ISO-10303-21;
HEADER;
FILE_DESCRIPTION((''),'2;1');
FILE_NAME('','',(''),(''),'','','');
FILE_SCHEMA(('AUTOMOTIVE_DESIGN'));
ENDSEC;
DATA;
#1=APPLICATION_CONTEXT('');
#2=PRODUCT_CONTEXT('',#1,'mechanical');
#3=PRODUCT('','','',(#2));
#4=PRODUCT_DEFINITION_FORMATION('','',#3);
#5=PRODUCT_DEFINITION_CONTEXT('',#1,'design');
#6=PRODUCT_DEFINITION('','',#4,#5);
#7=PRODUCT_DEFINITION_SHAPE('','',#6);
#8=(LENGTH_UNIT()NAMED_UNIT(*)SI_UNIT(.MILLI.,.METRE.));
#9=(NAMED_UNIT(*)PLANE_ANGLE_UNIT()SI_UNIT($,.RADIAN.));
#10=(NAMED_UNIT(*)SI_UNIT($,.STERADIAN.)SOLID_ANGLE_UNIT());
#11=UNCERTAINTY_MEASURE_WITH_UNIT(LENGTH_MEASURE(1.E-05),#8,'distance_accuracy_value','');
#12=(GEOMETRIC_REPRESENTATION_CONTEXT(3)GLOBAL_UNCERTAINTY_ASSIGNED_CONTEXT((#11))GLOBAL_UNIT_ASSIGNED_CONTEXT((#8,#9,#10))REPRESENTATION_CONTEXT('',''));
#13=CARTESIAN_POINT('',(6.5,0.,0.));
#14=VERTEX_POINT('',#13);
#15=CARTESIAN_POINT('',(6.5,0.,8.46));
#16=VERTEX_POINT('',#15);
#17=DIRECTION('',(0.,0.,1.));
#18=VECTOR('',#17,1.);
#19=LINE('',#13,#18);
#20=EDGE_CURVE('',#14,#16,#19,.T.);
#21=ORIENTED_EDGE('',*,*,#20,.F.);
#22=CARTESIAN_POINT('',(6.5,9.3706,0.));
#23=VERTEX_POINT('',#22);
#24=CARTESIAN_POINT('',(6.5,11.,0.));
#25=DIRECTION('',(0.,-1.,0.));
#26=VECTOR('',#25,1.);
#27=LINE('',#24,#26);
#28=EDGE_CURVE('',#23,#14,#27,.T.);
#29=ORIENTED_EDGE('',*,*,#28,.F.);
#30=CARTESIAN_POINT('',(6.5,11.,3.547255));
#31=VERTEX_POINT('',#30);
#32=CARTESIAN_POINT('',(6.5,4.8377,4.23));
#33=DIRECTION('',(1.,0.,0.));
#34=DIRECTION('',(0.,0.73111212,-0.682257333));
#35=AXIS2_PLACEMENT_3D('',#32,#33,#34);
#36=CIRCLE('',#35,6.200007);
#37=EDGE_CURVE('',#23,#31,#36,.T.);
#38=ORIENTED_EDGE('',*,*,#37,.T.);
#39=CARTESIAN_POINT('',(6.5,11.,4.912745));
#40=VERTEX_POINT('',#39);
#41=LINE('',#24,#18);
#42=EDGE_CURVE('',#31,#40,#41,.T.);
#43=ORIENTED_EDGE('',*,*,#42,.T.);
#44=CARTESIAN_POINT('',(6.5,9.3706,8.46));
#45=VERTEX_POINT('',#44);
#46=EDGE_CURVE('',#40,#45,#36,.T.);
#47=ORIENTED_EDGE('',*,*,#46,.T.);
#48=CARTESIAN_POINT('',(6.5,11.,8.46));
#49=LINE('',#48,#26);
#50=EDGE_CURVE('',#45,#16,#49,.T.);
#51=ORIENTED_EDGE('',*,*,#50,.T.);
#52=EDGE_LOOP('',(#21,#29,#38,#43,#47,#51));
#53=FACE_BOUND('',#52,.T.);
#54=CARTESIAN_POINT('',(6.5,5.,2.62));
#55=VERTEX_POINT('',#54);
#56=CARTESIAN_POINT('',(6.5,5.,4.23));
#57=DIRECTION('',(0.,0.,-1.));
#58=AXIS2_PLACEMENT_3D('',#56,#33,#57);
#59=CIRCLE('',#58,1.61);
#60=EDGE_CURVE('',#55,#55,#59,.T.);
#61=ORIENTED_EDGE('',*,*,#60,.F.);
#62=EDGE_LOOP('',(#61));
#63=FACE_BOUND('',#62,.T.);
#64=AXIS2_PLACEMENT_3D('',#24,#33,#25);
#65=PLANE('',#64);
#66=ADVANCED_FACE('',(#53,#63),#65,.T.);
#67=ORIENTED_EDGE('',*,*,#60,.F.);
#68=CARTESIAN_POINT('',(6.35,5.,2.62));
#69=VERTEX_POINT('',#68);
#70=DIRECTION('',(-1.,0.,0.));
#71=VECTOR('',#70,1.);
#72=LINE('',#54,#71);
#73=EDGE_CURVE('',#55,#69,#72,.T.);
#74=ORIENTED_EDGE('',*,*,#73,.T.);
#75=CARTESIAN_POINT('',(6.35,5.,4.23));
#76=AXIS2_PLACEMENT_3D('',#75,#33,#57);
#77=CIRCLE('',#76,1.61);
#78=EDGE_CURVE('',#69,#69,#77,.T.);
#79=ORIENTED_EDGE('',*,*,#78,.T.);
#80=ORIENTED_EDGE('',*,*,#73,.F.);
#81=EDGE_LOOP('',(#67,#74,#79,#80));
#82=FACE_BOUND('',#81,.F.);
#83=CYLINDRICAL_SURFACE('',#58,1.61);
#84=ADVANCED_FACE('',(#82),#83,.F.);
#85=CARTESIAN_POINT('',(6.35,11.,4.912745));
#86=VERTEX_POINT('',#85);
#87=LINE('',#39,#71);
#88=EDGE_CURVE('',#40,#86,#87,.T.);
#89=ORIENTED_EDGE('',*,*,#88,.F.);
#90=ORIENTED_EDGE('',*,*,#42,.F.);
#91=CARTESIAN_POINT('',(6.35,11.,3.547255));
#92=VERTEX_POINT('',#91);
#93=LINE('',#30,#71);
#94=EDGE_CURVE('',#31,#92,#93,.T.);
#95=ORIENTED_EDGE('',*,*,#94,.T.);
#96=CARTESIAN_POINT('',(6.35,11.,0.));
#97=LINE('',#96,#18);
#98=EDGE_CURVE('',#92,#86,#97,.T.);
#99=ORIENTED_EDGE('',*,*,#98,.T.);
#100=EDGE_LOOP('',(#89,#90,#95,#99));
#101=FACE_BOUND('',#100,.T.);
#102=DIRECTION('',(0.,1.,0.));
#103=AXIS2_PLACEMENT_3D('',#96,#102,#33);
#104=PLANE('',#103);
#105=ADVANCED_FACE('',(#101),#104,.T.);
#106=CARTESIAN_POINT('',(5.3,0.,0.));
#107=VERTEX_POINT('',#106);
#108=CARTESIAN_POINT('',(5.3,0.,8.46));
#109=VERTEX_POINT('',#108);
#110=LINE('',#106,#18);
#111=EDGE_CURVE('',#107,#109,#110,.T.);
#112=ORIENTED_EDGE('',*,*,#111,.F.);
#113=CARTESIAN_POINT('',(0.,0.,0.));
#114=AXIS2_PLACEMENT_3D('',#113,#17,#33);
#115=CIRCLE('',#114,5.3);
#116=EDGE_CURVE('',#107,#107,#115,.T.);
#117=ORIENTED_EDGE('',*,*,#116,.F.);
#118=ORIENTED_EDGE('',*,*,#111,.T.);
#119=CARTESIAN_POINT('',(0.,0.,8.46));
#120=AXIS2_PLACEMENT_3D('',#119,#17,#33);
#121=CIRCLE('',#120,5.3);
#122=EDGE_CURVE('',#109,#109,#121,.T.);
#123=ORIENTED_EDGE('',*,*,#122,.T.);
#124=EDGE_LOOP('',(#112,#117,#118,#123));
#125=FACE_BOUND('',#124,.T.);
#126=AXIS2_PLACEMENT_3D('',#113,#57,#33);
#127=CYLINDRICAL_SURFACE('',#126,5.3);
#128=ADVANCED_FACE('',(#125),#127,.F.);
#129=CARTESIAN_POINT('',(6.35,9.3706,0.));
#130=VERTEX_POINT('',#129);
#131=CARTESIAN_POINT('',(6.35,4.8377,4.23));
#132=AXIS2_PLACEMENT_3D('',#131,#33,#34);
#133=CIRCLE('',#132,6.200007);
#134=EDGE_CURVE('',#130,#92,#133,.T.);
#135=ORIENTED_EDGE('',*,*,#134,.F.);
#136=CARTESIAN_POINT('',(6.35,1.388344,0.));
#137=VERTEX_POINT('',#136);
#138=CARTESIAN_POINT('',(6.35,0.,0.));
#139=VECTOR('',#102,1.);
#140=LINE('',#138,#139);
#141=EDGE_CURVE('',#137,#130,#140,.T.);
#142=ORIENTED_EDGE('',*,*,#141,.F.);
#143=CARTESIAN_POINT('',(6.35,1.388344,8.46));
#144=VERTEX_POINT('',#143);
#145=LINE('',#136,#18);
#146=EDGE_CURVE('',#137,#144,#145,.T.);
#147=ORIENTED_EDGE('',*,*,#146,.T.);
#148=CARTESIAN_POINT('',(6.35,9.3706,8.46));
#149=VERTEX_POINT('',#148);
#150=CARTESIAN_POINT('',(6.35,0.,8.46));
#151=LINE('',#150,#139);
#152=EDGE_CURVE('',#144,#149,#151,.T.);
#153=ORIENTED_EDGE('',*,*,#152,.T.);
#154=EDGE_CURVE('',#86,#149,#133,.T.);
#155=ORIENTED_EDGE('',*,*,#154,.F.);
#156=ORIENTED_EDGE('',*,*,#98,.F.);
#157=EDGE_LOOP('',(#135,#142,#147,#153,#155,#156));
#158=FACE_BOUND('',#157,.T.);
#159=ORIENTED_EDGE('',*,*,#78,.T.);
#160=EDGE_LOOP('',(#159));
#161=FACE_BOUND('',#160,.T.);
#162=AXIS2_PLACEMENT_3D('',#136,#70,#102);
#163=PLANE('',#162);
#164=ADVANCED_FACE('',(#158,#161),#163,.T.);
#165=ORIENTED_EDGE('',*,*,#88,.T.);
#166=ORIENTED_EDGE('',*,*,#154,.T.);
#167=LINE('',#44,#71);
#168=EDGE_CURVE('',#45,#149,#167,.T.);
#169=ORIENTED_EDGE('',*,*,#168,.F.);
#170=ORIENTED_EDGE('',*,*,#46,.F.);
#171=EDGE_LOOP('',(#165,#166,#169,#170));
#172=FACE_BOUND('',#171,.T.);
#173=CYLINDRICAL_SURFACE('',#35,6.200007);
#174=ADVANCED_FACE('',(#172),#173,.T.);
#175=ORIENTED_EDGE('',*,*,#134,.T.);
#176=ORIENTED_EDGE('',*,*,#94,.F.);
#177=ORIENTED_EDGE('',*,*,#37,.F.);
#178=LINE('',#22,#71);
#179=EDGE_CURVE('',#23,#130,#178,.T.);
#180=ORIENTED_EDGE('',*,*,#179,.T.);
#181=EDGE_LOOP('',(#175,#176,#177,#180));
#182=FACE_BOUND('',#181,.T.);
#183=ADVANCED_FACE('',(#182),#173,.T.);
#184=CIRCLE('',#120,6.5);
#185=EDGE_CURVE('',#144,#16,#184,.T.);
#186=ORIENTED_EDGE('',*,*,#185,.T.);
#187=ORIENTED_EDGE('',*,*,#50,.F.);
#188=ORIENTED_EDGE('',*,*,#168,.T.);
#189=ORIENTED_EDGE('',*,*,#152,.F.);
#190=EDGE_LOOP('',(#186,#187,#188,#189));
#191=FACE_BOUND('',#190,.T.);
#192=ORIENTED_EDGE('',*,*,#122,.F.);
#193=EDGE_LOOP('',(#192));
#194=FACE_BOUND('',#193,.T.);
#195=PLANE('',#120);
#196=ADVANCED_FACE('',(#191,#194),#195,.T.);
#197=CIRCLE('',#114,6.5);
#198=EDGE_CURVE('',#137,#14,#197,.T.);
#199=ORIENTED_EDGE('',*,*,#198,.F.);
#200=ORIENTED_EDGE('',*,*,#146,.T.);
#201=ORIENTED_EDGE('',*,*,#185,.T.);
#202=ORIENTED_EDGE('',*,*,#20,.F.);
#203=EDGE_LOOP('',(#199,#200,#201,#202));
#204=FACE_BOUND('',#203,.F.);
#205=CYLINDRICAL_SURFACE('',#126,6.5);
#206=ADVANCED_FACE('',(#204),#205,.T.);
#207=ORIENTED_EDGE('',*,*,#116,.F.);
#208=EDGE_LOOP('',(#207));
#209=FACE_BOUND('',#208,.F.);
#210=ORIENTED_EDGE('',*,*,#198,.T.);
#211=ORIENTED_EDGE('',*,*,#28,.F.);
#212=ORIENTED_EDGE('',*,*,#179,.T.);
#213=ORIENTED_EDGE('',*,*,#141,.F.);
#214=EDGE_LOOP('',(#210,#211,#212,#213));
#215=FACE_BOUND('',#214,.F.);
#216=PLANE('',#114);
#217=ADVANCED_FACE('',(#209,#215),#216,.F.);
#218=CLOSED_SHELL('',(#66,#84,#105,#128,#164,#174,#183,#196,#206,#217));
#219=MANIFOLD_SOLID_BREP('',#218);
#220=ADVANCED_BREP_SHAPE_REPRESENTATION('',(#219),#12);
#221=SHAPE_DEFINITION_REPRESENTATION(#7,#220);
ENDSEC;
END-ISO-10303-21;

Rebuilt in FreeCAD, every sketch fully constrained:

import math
import FreeCAD as App
import Part
import Sketcher

V = App.Vector

doc = App.newDocument("Part")
params = doc.addObject("Spreadsheet::Sheet", "Params")
for row, (alias, value) in enumerate([
    ("sketch1_radius", "6.5 mm"),
    ("sketch1_height", "11 mm"),
    ("sketch1_diameter", "10.6 mm"),
    ("sketch1_width", "0.15 mm"),
    ("pad1_length", "8.46 mm"),
    ("sketch2_radius", "6.2 mm"),
    ("sketch2_diameter", "3.22 mm"),
    ("pocket1_length", "0.15 mm"),
], start=1):
    params.set(f"A{row}", alias)
    params.set(f"B{row}", "=" + value)
    params.setAlias(f"B{row}", alias)

body = doc.addObject("PartDesign::Body", "Body")

sketch1 = body.newObject("Sketcher::SketchObject", "Sketch")
sketch1.AttachmentSupport = (doc.getObject("XY_Plane"), [""])
sketch1.MapMode = "FlatFace"
sketch1.addGeometry(Part.ArcOfCircle(Part.Circle(V(0, 0, 0), V(0, 0, 1), 6.5), math.radians(12.332903), math.radians(360)), False)
sketch1.addGeometry(Part.LineSegment(V(6.5, 0, 0), V(6.5, 11, 0)), False)
sketch1.addGeometry(Part.LineSegment(V(6.5, 11, 0), V(6.35, 11, 0)), False)
sketch1.addGeometry(Part.LineSegment(V(6.35, 11, 0), V(6.35, 1.388344, 0)), False)
sketch1.addGeometry(Part.Circle(V(0, 0, 0), V(0, 0, 1), 5.3), False)
sketch1.addConstraint(Sketcher.Constraint("Tangent", 0, 2, 1, 1))
sketch1.addConstraint(Sketcher.Constraint("Coincident", 1, 2, 2, 1))
sketch1.addConstraint(Sketcher.Constraint("Coincident", 2, 2, 3, 1))
sketch1.addConstraint(Sketcher.Constraint("Coincident", 3, 2, 0, 1))
sketch1.addConstraint(Sketcher.Constraint("Vertical", 1))
sketch1.addConstraint(Sketcher.Constraint("Horizontal", 2))
sketch1.addConstraint(Sketcher.Constraint("Vertical", 3))
sketch1.addConstraint(Sketcher.Constraint("Coincident", 0, 3, -1, 1))
sketch1.addConstraint(Sketcher.Constraint("Coincident", 4, 3, -1, 1))
sketch1.addConstraint(Sketcher.Constraint("Radius", 0, 6.5))
sketch1.addConstraint(Sketcher.Constraint("DistanceY", 1, 1, 1, 2, 11.0))
sketch1.addConstraint(Sketcher.Constraint("Diameter", 4, 10.6))
sketch1.addConstraint(Sketcher.Constraint("DistanceX", 2, 2, 2, 1, 0.15))
sketch1.setExpression("Constraints[9]", "Params.sketch1_radius")
sketch1.setExpression("Constraints[10]", "Params.sketch1_height")
sketch1.setExpression("Constraints[11]", "Params.sketch1_diameter")
sketch1.setExpression("Constraints[12]", "Params.sketch1_width")
pad1 = body.newObject("PartDesign::Pad", "Pad")
pad1.Profile = sketch1
pad1.setExpression("Length", "Params.pad1_length")

sketch2 = body.newObject("Sketcher::SketchObject", "Sketch001")
sketch2.AttachmentSupport = (doc.getObject("YZ_Plane"), [""])
sketch2.MapMode = "FlatFace"
sketch2.AttachmentOffset = App.Placement(V(0, 0, 6.5), App.Rotation())
sketch2.addGeometry(Part.Circle(V(5, 4.23, 0), V(0, 0, 1), 1.61), False)
sketch2.addGeometry(Part.ArcOfCircle(Part.Circle(V(4.8377, 4.23, 0), V(0, 0, 1), 6.200007), math.radians(-43.020292), math.radians(-6.322238)), False)
sketch2.addGeometry(Part.LineSegment(V(9.3706, 0, 0), V(11, 0, 0)), False)
sketch2.addGeometry(Part.LineSegment(V(11, 0, 0), V(11, 3.547255, 0)), False)
sketch2.addGeometry(Part.LineSegment(V(11, 8.46, 0), V(9.3706, 8.46, 0)), False)
sketch2.addGeometry(Part.ArcOfCircle(Part.Circle(V(4.8377, 4.23, 0), V(0, 0, 1), 6.200007), math.radians(6.322238), math.radians(43.020292)), False)
sketch2.addGeometry(Part.LineSegment(V(11, 4.912745, 0), V(11, 8.46, 0)), False)
sketch2.addConstraint(Sketcher.Constraint("Coincident", 1, 1, 2, 1))
sketch2.addConstraint(Sketcher.Constraint("Coincident", 2, 2, 3, 1))
sketch2.addConstraint(Sketcher.Constraint("Coincident", 3, 2, 1, 2))
sketch2.addConstraint(Sketcher.Constraint("Coincident", 4, 2, 5, 2))
sketch2.addConstraint(Sketcher.Constraint("Coincident", 5, 1, 6, 1))
sketch2.addConstraint(Sketcher.Constraint("Coincident", 6, 2, 4, 1))
sketch2.addConstraint(Sketcher.Constraint("Horizontal", 2))
sketch2.addConstraint(Sketcher.Constraint("Vertical", 3))
sketch2.addConstraint(Sketcher.Constraint("Horizontal", 4))
sketch2.addConstraint(Sketcher.Constraint("Vertical", 6))
sketch2.addConstraint(Sketcher.Constraint("Coincident", 5, 3, 1, 3))
sketch2.addConstraint(Sketcher.Constraint("Equal", 1, 5))
sketch2.addConstraint(Sketcher.Constraint("PointOnObject", 1, 1, -1))
sketch2.addConstraint(Sketcher.Constraint("Horizontal", 0, 3, 1, 3))
sketch2.addConstraint(Sketcher.Constraint("Vertical", 1, 1, 4, 2))
sketch2.addConstraint(Sketcher.Constraint("Vertical", 3, 2, 5, 1))
sketch2.addConstraint(Sketcher.Constraint("Radius", 1, 6.2))
sketch2.addConstraint(Sketcher.Constraint("Diameter", 0, 3.22))
sketch2.addConstraint(Sketcher.Constraint("DistanceX", -1, 1, 0, 3, 5.0))
sketch2.addConstraint(Sketcher.Constraint("DistanceY", -1, 1, 0, 3, 4.23))
sketch2.addConstraint(Sketcher.Constraint("DistanceX", -1, 1, 2, 2, 11.0))
sketch2.addConstraint(Sketcher.Constraint("DistanceX", 2, 1, 2, 2, 1.6294))
sketch2.setExpression("Constraints[16]", "Params.sketch2_radius")
sketch2.setExpression("Constraints[17]", "Params.sketch2_diameter")
pocket1 = body.newObject("PartDesign::Pocket", "Pocket")
pocket1.Profile = sketch2
pocket1.setExpression("Length", "Params.pocket1_length")

doc.recompute()
